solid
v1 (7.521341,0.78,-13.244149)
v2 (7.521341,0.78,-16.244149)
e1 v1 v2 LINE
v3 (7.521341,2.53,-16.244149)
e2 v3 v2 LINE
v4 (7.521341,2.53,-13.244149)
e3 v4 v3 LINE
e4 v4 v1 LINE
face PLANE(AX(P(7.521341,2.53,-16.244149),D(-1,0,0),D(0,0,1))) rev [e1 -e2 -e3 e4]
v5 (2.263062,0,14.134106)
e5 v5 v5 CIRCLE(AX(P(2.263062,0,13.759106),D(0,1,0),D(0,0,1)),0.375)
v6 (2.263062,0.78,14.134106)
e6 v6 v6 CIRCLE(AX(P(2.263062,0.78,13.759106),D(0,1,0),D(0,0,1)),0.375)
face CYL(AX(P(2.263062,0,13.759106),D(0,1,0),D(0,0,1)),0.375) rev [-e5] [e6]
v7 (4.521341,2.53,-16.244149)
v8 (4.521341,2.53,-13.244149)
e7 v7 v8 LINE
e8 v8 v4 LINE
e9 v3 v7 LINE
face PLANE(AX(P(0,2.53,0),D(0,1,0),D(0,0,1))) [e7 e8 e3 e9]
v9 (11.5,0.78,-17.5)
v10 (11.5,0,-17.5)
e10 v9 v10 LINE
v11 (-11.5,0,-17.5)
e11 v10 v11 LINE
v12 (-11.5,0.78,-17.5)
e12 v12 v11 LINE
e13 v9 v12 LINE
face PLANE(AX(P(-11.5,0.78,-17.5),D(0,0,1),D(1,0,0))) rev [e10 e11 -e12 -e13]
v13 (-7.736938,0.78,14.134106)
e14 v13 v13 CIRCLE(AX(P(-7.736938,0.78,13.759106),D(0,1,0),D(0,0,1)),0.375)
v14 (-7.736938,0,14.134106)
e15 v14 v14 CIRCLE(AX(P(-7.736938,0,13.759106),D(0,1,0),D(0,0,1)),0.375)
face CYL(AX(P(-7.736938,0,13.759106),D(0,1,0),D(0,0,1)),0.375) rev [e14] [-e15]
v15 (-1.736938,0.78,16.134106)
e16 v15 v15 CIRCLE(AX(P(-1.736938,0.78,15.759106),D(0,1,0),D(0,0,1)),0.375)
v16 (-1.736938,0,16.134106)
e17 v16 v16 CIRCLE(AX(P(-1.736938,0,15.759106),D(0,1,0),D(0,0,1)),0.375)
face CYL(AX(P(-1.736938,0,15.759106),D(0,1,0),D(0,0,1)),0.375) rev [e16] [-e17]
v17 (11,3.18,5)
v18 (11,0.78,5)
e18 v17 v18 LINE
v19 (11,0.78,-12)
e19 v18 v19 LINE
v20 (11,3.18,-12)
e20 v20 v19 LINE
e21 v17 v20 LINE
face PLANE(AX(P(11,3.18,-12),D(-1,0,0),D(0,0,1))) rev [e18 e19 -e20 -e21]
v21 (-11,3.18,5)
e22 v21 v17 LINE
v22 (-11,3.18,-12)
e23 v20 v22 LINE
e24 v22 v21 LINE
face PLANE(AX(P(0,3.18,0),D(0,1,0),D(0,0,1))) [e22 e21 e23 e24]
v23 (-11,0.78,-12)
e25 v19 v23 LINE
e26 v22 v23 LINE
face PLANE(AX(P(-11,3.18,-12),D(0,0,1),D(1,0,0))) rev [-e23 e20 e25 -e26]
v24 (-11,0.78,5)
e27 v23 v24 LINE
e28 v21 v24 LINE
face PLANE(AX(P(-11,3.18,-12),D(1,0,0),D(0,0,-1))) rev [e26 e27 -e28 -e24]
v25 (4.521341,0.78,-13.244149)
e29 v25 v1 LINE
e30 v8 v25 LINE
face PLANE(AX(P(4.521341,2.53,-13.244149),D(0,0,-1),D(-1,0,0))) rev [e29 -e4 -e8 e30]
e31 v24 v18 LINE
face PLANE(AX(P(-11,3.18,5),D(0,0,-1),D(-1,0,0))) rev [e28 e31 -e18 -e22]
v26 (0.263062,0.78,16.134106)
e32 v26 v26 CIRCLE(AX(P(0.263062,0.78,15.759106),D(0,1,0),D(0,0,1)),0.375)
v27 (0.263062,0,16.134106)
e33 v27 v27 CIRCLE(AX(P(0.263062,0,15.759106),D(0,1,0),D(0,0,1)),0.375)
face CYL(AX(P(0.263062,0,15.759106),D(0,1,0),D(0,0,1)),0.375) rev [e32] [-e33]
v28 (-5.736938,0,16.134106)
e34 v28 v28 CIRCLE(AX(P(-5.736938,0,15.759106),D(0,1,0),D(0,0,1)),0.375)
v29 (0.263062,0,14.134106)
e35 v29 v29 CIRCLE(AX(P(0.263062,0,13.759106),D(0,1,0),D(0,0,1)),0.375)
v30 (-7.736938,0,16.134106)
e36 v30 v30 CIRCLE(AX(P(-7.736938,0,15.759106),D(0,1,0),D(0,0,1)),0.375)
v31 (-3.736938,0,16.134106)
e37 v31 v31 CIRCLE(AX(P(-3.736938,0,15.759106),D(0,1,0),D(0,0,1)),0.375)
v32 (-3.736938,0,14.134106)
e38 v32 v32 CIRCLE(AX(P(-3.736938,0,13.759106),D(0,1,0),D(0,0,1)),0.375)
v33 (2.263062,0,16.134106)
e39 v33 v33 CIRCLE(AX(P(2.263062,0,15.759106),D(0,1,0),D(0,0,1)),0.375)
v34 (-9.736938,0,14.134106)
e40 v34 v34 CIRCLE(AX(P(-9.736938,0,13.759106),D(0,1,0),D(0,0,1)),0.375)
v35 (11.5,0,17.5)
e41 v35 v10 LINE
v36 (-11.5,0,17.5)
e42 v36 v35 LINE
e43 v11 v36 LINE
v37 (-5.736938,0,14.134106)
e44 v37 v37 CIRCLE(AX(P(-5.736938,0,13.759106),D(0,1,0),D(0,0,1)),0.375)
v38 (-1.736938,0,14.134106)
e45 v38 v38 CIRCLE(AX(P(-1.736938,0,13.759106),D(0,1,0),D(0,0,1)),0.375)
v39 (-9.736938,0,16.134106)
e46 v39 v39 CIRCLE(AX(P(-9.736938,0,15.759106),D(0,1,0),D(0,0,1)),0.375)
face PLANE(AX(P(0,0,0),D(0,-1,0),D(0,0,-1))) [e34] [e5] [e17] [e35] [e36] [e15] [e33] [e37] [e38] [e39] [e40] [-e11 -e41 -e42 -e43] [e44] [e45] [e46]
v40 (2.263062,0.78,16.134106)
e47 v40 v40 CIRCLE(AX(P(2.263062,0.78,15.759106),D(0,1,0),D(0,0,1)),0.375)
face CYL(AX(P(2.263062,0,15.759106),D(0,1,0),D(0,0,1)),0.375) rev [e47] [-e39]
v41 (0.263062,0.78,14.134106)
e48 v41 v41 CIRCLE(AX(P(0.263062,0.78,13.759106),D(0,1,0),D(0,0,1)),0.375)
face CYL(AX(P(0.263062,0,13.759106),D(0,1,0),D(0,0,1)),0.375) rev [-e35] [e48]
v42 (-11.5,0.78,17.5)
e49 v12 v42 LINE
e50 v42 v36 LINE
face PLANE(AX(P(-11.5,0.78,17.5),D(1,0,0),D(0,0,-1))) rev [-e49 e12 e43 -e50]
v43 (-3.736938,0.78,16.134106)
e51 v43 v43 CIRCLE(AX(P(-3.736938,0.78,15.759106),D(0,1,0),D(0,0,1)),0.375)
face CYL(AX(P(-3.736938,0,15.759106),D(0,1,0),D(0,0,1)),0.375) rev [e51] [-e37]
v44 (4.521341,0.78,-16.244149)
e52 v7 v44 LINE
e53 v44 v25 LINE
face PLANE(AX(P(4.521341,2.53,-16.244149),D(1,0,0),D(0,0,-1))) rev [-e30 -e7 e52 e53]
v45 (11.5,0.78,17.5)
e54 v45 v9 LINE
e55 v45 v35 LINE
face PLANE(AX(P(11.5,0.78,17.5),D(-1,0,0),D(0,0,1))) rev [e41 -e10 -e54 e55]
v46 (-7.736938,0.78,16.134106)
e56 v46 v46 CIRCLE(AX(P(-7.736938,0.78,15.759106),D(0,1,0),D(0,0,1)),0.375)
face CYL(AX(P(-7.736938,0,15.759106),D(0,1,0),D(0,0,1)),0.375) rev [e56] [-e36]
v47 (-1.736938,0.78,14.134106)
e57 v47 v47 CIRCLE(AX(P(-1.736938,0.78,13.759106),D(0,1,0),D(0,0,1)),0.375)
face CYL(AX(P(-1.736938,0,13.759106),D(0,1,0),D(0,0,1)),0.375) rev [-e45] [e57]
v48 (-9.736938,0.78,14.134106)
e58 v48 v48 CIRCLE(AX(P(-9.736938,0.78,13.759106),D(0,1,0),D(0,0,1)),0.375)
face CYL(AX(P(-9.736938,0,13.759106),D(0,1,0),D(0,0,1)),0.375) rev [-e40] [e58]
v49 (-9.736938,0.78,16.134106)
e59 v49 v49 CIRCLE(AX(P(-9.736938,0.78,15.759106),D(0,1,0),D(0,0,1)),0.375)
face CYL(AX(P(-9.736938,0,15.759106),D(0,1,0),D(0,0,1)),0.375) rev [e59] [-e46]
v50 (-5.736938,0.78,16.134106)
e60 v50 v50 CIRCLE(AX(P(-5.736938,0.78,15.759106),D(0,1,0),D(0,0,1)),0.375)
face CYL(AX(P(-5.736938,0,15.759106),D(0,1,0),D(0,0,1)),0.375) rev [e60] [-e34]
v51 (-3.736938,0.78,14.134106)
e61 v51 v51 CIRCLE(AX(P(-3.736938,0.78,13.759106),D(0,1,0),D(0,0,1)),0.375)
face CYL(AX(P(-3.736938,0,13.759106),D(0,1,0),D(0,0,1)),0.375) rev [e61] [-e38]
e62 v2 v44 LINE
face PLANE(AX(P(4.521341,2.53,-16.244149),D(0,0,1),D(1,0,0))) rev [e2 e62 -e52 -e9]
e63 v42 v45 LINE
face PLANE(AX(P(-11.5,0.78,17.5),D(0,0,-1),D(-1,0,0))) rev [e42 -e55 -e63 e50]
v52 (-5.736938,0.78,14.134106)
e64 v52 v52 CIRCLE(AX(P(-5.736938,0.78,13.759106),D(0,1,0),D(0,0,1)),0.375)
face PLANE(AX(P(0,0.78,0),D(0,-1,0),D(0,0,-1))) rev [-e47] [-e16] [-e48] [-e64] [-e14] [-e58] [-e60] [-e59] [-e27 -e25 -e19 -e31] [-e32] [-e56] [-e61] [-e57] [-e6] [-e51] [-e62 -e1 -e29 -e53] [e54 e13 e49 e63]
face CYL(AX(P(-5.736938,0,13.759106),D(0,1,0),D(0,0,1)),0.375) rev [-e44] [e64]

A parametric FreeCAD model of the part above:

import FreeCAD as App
import Part
import Sketcher
from FreeCAD import Vector
Q = App.Units.Quantity

doc = App.newDocument("Part")
body = doc.addObject("PartDesign::Body", "Body")

# Sketch on XZ plane
sketch1 = doc.addObject("Sketcher::SketchObject", "Sketch")
body.addObject(sketch1)
sketch1.AttachmentSupport = (doc.XZ_Plane, [""])
sketch1.MapMode = "FlatFace"
sketch1.addGeometry(Part.LineSegment(Vector(-12, -18, 0), Vector(-12, 18, 0)), False)
sketch1.addGeometry(Part.LineSegment(Vector(-12, 18, 0), Vector(12, 18, 0)), False)
sketch1.addGeometry(Part.LineSegment(Vector(12, 18, 0), Vector(12, -18, 0)), False)
sketch1.addGeometry(Part.LineSegment(Vector(12, -18, 0), Vector(-12, -18, 0)), False)
sketch1.addConstraint(Sketcher.Constraint("Coincident", 0, 2, 1, 1))
sketch1.addConstraint(Sketcher.Constraint("Coincident", 1, 2, 2, 1))
sketch1.addConstraint(Sketcher.Constraint("Coincident", 2, 2, 3, 1))
sketch1.addConstraint(Sketcher.Constraint("Coincident", 3, 2, 0, 1))
sketch1.addConstraint(Sketcher.Constraint("Vertical", 0))
sketch1.addConstraint(Sketcher.Constraint("Horizontal", 1))
sketch1.addConstraint(Sketcher.Constraint("Vertical", 2))
sketch1.addConstraint(Sketcher.Constraint("Horizontal", 3))
sketch1.addConstraint(Sketcher.Constraint("Symmetric", 0, 2, 2, 2, -1, 1))
sketch1.addConstraint(Sketcher.Constraint("DistanceX", 1, 1, 1, 2, Q("23 mm")))
sketch1.addConstraint(Sketcher.Constraint("DistanceY", 0, 1, 0, 2, Q("35 mm")))
pad1 = doc.addObject("PartDesign::Pad", "Pad")
body.addObject(pad1)
pad1.Profile = sketch1
pad1.Length = 0.78
pad1.Reversed = True

# Sketch on XZ plane
sketch2 = doc.addObject("Sketcher::SketchObject", "Sketch001")
body.addObject(sketch2)
sketch2.AttachmentSupport = (doc.XZ_Plane, [""])
sketch2.MapMode = "FlatFace"
sketch2.AttachmentOffset = App.Placement(Vector(0, 0, -0.78), App.Rotation())
sketch2.addGeometry(Part.LineSegment(Vector(-11, -12, 0), Vector(-11, 5, 0)), False)
sketch2.addGeometry(Part.LineSegment(Vector(-11, 5, 0), Vector(11, 5, 0)), False)
sketch2.addGeometry(Part.LineSegment(Vector(11, 5, 0), Vector(11, -12, 0)), False)
sketch2.addGeometry(Part.LineSegment(Vector(11, -12, 0), Vector(-11, -12, 0)), False)
sketch2.addConstraint(Sketcher.Constraint("Coincident", 0, 2, 1, 1))
sketch2.addConstraint(Sketcher.Constraint("Coincident", 1, 2, 2, 1))
sketch2.addConstraint(Sketcher.Constraint("Coincident", 2, 2, 3, 1))
sketch2.addConstraint(Sketcher.Constraint("Coincident", 3, 2, 0, 1))
sketch2.addConstraint(Sketcher.Constraint("Vertical", 0))
sketch2.addConstraint(Sketcher.Constraint("Horizontal", 1))
sketch2.addConstraint(Sketcher.Constraint("Vertical", 2))
sketch2.addConstraint(Sketcher.Constraint("Horizontal", 3))
sketch2.addConstraint(Sketcher.Constraint("DistanceX", 1, 1, 1, 2, Q("22 mm")))
sketch2.addConstraint(Sketcher.Constraint("DistanceY", 0, 1, 0, 2, Q("17 mm")))
sketch2.addConstraint(Sketcher.Constraint("DistanceX", 0, 2, -1, 1, Q("11 mm")))
sketch2.addConstraint(Sketcher.Constraint("DistanceY", -1, 1, 0, 2, Q("5 mm")))
pad2 = doc.addObject("PartDesign::Pad", "Pad001")
body.addObject(pad2)
pad2.Profile = sketch2
pad2.Length = 2.4
pad2.Reversed = True

# Sketch on XZ plane
sketch3 = doc.addObject("Sketcher::SketchObject", "Sketch002")
body.addObject(sketch3)
sketch3.AttachmentSupport = (doc.XZ_Plane, [""])
sketch3.MapMode = "FlatFace"
sketch3.AttachmentOffset = App.Placement(Vector(0, 0, -0.78), App.Rotation())
sketch3.addGeometry(Part.LineSegment(Vector(4.5, -16.2, 0), Vector(4.5, -13.2, 0)), False)
sketch3.addGeometry(Part.LineSegment(Vector(4.5, -13.2, 0), Vector(7.5, -13.2, 0)), False)
sketch3.addGeometry(Part.LineSegment(Vector(7.5, -13.2, 0), Vector(7.5, -16.2, 0)), False)
sketch3.addGeometry(Part.LineSegment(Vector(7.5, -16.2, 0), Vector(4.5, -16.2, 0)), False)
sketch3.addConstraint(Sketcher.Constraint("Coincident", 0, 2, 1, 1))
sketch3.addConstraint(Sketcher.Constraint("Coincident", 1, 2, 2, 1))
sketch3.addConstraint(Sketcher.Constraint("Coincident", 2, 2, 3, 1))
sketch3.addConstraint(Sketcher.Constraint("Coincident", 3, 2, 0, 1))
sketch3.addConstraint(Sketcher.Constraint("Vertical", 0))
sketch3.addConstraint(Sketcher.Constraint("Horizontal", 1))
sketch3.addConstraint(Sketcher.Constraint("Vertical", 2))
sketch3.addConstraint(Sketcher.Constraint("Horizontal", 3))
sketch3.addConstraint(Sketcher.Constraint("Equal", 3, 0))
sketch3.addConstraint(Sketcher.Constraint("DistanceX", 1, 1, 1, 2, Q("3 mm")))
sketch3.addConstraint(Sketcher.Constraint("DistanceX", -1, 1, 0, 2, Q("4.521341 mm")))
sketch3.addConstraint(Sketcher.Constraint("DistanceY", 0, 2, -1, 1, Q("13.244149 mm")))
pad3 = doc.addObject("PartDesign::Pad", "Pad002")
body.addObject(pad3)
pad3.Profile = sketch3
pad3.Length = 1.75
pad3.Reversed = True

# Sketch on XZ plane
sketch4 = doc.addObject("Sketcher::SketchObject", "Sketch003")
body.addObject(sketch4)
sketch4.AttachmentSupport = (doc.XZ_Plane, [""])
sketch4.MapMode = "FlatFace"
sketch4.AttachmentOffset = App.Placement(Vector(0, 0, -0.78), App.Rotation())
sketch4.addGeometry(Part.Circle(Vector(-9.74, 15.76, 0), Vector(0, 0, 1), 0.38), False)
sketch4.addGeometry(Part.Circle(Vector(-7.74, 15.76, 0), Vector(0, 0, 1), 0.38), False)
sketch4.addGeometry(Part.Circle(Vector(-5.74, 15.76, 0), Vector(0, 0, 1), 0.38), False)
sketch4.addGeometry(Part.Circle(Vector(-3.74, 15.76, 0), Vector(0, 0, 1), 0.38), False)
sketch4.addGeometry(Part.Circle(Vector(-1.74, 15.76, 0), Vector(0, 0, 1), 0.38), False)
sketch4.addGeometry(Part.Circle(Vector(0.26, 15.76, 0), Vector(0, 0, 1), 0.38), False)
sketch4.addGeometry(Part.Circle(Vector(2.26, 15.76, 0), Vector(0, 0, 1), 0.38), False)
sketch4.addGeometry(Part.Circle(Vector(-7.74, 13.76, 0), Vector(0, 0, 1), 0.38), False)
sketch4.addGeometry(Part.Circle(Vector(-5.74, 13.76, 0), Vector(0, 0, 1), 0.38), False)
sketch4.addGeometry(Part.Circle(Vector(-3.74, 13.76, 0), Vector(0, 0, 1), 0.38), False)
sketch4.addGeometry(Part.Circle(Vector(-1.74, 13.76, 0), Vector(0, 0, 1), 0.38), False)
sketch4.addGeometry(Part.Circle(Vector(0.26, 13.76, 0), Vector(0, 0, 1), 0.38), False)
sketch4.addGeometry(Part.Circle(Vector(2.26, 13.76, 0), Vector(0, 0, 1), 0.38), False)
sketch4.addGeometry(Part.Circle(Vector(-9.74, 13.76, 0), Vector(0, 0, 1), 0.38), False)
sketch4.addConstraint(Sketcher.Constraint("Equal", 0, 1))
sketch4.addConstraint(Sketcher.Constraint("Equal", 1, 2))
sketch4.addConstraint(Sketcher.Constraint("Equal", 2, 3))
sketch4.addConstraint(Sketcher.Constraint("Equal", 3, 4))
sketch4.addConstraint(Sketcher.Constraint("Equal", 4, 5))
sketch4.addConstraint(Sketcher.Constraint("Equal", 5, 6))
sketch4.addConstraint(Sketcher.Constraint("Equal", 6, 7))
sketch4.addConstraint(Sketcher.Constraint("Equal", 7, 8))
sketch4.addConstraint(Sketcher.Constraint("Equal", 8, 9))
sketch4.addConstraint(Sketcher.Constraint("Equal", 9, 10))
sketch4.addConstraint(Sketcher.Constraint("Equal", 10, 11))
sketch4.addConstraint(Sketcher.Constraint("Equal", 11, 12))
sketch4.addConstraint(Sketcher.Constraint("Equal", 12, 13))
sketch4.addConstraint(Sketcher.Constraint("Horizontal", 0, 3, 1, 3))
sketch4.addConstraint(Sketcher.Constraint("Horizontal", 1, 3, 2, 3))
sketch4.addConstraint(Sketcher.Constraint("Horizontal", 2, 3, 3, 3))
sketch4.addConstraint(Sketcher.Constraint("Horizontal", 3, 3, 4, 3))
sketch4.addConstraint(Sketcher.Constraint("Horizontal", 4, 3, 5, 3))
sketch4.addConstraint(Sketcher.Constraint("Horizontal", 5, 3, 6, 3))
sketch4.addConstraint(Sketcher.Constraint("Horizontal", 7, 3, 8, 3))
sketch4.addConstraint(Sketcher.Constraint("Horizontal", 8, 3, 9, 3))
sketch4.addConstraint(Sketcher.Constraint("Horizontal", 9, 3, 10, 3))
sketch4.addConstraint(Sketcher.Constraint("Horizontal", 10, 3, 11, 3))
sketch4.addConstraint(Sketcher.Constraint("Horizontal", 11, 3, 12, 3))
sketch4.addConstraint(Sketcher.Constraint("Horizontal", 12, 3, 13, 3))
sketch4.addConstraint(Sketcher.Constraint("Vertical", 1, 3, 7, 3))
sketch4.addConstraint(Sketcher.Constraint("Vertical", 2, 3, 8, 3))
sketch4.addConstraint(Sketcher.Constraint("Vertical", 3, 3, 9, 3))
sketch4.addConstraint(Sketcher.Constraint("Vertical", 4, 3, 10, 3))
sketch4.addConstraint(Sketcher.Constraint("Vertical", 5, 3, 11, 3))
sketch4.addConstraint(Sketcher.Constraint("Vertical", 6, 3, 12, 3))
sketch4.addConstraint(Sketcher.Constraint("Vertical", 0, 3, 13, 3))
sketch4.addConstraint(Sketcher.Constraint("Diameter", 0, Q("0.75 mm")))
sketch4.addConstraint(Sketcher.Constraint("DistanceX", 0, 3, 1, 3, Q("2 mm")))
sketch4.addConstraint(Sketcher.Constraint("DistanceX", 1, 3, 2, 3, Q("2 mm")))
sketch4.addConstraint(Sketcher.Constraint("DistanceX", 2, 3, 3, 3, Q("2 mm")))
sketch4.addConstraint(Sketcher.Constraint("DistanceX", 3, 3, 4, 3, Q("2 mm")))
sketch4.addConstraint(Sketcher.Constraint("DistanceX", 4, 3, 5, 3, Q("2 mm")))
sketch4.addConstraint(Sketcher.Constraint("DistanceX", 5, 3, 6, 3, Q("2 mm")))
sketch4.addConstraint(Sketcher.Constraint("DistanceY", 7, 3, 1, 3, Q("2 mm")))
sketch4.addConstraint(Sketcher.Constraint("DistanceX", 0, 3, -1, 1, Q("9.736938 mm")))
sketch4.addConstraint(Sketcher.Constraint("DistanceY", -1, 1, 0, 3, Q("15.759106 mm")))
pocket1 = doc.addObject("PartDesign::Pocket", "Pocket")
body.addObject(pocket1)
pocket1.Profile = sketch4
pocket1.Type = "ThroughAll"
pocket1.Reversed = True

doc.recompute()
